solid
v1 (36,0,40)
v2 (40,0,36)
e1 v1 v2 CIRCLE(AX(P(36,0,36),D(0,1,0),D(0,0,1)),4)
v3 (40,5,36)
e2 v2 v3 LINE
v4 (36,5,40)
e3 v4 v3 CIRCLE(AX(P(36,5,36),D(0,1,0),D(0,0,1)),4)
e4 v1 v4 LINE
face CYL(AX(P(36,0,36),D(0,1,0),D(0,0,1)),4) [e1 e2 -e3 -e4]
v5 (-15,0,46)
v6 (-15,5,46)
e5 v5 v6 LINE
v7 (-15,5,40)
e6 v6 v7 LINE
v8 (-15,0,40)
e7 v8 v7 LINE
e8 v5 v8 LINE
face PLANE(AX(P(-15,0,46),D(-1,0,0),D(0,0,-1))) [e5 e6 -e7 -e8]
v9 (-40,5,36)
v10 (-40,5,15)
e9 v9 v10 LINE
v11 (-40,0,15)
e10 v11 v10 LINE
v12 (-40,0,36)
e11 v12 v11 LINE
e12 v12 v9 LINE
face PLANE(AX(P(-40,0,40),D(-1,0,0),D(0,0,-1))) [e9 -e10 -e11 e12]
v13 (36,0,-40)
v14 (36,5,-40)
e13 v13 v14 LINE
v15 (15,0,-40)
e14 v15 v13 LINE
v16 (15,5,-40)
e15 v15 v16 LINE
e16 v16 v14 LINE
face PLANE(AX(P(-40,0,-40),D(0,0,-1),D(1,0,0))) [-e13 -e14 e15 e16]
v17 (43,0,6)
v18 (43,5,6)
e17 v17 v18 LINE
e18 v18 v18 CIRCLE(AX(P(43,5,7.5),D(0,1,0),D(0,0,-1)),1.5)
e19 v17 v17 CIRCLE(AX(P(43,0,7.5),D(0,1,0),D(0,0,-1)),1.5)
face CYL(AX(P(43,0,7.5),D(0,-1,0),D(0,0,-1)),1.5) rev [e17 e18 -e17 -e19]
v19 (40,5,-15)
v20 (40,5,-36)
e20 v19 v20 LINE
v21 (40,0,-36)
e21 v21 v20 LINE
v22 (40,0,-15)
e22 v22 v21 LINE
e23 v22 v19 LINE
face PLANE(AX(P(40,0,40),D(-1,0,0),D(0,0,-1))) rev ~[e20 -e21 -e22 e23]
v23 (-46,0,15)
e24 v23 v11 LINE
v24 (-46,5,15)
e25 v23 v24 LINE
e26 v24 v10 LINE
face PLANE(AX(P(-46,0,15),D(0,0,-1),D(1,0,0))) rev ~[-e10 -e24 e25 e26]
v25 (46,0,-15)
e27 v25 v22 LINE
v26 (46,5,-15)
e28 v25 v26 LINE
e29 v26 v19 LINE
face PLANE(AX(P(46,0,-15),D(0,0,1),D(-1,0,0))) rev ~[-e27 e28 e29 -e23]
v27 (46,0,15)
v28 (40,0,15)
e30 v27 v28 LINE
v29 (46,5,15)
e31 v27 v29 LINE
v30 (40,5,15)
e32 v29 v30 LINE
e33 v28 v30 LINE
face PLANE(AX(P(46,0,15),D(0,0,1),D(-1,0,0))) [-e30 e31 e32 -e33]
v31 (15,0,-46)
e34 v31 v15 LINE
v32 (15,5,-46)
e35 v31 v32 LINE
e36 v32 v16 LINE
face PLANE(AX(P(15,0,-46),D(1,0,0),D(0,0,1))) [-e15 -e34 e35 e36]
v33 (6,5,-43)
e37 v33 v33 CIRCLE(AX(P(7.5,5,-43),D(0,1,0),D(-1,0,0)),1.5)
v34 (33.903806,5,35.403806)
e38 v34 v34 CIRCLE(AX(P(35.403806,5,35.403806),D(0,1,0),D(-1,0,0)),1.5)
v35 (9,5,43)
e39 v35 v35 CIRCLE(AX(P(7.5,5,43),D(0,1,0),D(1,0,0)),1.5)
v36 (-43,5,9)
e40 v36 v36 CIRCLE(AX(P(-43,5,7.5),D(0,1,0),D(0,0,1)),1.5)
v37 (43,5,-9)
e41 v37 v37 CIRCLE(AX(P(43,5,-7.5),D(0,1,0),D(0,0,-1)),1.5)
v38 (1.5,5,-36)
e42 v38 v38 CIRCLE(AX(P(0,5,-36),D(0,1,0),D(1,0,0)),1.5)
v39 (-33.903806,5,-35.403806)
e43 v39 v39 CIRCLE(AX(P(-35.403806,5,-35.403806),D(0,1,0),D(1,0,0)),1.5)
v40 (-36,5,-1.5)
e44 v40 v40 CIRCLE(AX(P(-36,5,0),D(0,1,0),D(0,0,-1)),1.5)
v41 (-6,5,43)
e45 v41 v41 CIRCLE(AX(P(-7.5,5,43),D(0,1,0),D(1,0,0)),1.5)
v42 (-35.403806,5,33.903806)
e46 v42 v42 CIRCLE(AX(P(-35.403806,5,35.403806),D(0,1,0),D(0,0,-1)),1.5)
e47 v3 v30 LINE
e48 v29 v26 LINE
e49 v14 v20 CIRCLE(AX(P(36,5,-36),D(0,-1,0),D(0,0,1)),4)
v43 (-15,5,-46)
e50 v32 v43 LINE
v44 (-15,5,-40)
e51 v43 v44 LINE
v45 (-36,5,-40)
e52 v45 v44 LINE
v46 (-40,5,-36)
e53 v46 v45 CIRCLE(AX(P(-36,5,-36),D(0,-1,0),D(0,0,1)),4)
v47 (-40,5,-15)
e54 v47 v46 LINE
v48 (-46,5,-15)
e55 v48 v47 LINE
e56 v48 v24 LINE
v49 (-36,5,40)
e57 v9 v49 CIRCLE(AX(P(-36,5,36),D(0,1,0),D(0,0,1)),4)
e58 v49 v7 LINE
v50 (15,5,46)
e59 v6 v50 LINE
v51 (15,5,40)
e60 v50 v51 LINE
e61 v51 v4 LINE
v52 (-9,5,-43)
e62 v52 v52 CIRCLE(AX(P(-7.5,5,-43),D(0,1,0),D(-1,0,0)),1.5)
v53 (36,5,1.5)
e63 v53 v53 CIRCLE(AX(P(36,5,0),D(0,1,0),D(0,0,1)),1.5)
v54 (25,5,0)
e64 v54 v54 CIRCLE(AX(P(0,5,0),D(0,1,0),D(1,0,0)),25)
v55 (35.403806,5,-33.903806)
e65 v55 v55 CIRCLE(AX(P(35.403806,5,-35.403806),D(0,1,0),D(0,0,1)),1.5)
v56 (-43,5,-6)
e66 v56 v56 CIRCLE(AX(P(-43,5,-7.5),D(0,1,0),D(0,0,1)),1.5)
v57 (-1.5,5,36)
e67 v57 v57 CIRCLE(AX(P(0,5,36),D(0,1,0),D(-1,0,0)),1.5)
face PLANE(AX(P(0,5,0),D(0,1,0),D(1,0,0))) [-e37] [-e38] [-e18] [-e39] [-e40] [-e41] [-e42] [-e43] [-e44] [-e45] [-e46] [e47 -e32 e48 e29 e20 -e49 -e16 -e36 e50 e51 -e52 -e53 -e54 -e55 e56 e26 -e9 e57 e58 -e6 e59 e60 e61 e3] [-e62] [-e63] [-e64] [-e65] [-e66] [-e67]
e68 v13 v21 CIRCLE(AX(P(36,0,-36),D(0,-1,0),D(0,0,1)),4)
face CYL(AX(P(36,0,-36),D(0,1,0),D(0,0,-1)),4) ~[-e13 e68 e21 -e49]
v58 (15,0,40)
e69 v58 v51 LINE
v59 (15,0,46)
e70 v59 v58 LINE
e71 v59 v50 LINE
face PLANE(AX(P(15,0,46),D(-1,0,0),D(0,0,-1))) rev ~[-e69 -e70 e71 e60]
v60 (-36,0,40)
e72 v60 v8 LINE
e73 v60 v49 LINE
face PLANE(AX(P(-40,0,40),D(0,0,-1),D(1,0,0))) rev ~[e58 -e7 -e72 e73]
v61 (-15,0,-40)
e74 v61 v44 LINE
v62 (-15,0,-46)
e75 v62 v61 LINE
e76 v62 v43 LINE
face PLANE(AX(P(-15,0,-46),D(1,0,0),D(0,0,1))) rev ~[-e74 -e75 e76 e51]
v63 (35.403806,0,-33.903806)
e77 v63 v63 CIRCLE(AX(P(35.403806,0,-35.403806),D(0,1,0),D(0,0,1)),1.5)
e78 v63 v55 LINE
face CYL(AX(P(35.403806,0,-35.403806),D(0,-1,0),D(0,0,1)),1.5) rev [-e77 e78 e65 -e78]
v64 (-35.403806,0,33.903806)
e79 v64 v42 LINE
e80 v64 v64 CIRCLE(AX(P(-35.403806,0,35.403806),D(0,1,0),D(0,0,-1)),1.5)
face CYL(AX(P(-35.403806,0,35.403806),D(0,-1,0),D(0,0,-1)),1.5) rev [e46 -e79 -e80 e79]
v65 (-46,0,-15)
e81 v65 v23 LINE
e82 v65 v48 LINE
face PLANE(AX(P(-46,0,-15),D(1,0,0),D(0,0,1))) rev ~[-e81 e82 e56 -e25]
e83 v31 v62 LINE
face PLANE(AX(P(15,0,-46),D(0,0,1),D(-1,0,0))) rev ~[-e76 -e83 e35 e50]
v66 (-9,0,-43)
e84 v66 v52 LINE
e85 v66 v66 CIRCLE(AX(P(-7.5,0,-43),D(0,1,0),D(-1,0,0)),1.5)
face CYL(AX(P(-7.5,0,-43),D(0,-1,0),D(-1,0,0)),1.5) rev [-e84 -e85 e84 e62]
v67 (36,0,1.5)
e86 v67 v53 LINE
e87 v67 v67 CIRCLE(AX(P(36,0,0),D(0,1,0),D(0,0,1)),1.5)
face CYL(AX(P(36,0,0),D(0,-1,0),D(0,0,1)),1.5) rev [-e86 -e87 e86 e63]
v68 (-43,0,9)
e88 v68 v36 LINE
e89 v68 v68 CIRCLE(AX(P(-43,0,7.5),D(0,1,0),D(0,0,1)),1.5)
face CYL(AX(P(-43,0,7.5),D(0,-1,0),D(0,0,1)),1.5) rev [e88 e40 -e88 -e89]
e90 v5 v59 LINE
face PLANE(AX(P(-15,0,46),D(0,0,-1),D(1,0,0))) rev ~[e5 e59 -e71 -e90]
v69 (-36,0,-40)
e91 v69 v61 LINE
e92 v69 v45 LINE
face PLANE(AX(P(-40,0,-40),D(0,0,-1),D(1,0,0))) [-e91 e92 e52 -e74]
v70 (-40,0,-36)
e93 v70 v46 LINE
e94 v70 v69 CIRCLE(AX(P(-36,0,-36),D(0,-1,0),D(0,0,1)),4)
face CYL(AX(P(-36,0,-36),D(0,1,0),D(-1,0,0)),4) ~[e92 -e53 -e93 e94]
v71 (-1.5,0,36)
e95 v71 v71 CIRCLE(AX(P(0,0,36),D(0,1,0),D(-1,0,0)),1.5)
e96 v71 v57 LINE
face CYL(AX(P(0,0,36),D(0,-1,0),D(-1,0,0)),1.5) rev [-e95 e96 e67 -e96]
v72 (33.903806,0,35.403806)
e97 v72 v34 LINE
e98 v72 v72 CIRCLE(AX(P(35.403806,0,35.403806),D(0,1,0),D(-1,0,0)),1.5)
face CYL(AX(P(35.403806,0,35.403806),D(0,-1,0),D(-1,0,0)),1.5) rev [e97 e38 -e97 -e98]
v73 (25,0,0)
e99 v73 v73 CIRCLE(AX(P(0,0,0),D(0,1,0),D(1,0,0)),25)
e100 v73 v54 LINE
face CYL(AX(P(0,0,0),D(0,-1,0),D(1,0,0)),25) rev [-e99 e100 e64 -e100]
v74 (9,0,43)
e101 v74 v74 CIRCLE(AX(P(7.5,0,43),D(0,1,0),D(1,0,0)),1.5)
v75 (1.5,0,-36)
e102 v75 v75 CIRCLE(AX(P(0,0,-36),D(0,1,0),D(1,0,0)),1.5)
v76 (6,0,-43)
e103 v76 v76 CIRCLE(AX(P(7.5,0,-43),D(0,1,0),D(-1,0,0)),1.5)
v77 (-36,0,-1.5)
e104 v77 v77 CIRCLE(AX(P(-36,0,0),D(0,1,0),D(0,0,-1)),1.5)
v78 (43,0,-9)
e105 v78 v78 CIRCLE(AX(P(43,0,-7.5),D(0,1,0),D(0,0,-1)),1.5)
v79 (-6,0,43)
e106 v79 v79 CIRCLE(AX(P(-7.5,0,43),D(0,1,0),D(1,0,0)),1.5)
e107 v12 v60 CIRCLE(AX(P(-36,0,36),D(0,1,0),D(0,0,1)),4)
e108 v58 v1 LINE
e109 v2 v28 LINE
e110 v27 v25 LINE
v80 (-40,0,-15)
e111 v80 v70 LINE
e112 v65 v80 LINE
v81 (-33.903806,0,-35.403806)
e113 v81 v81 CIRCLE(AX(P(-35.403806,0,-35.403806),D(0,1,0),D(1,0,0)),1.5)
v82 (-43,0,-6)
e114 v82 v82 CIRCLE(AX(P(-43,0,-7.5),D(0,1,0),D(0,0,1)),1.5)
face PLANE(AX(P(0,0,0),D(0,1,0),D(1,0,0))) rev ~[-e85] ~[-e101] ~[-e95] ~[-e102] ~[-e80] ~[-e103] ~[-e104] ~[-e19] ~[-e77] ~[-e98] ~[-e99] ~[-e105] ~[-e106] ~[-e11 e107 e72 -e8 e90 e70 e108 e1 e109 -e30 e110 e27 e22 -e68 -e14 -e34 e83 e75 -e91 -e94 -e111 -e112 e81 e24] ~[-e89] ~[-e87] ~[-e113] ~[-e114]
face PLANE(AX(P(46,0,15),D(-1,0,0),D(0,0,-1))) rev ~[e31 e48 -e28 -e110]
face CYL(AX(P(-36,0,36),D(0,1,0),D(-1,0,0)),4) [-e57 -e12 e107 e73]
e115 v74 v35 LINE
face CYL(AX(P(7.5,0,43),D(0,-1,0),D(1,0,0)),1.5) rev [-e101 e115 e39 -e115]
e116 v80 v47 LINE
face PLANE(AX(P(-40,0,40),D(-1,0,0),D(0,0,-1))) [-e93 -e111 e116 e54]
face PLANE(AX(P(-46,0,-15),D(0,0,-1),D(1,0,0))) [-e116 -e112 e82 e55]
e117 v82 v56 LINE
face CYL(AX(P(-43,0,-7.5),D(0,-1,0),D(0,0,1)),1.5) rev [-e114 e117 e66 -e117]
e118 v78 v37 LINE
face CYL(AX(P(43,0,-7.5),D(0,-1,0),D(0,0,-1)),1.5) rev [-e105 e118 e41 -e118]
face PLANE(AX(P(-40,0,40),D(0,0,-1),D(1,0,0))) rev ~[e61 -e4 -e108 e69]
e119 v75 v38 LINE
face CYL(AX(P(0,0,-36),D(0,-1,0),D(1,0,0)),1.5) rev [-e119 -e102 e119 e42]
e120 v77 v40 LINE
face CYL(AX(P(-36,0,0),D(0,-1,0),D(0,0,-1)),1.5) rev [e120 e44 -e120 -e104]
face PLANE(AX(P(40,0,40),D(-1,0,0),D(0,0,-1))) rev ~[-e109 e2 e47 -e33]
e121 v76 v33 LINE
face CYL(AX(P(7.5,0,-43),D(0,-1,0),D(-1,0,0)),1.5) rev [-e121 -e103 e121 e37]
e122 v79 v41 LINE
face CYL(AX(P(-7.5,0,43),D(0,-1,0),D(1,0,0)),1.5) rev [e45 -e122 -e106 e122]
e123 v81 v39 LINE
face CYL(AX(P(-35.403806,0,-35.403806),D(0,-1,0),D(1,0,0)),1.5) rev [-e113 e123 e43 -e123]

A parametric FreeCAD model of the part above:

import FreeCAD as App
import Part
import Sketcher
from FreeCAD import Vector


def edges_at(feature, points):
    """Names of the edges that pass closest to the given points."""
    edges = feature.Shape.Edges
    near = lambda p: min(range(len(edges)), key=lambda i: edges[i].distToShape(Part.Vertex(*p))[0])
    return sorted({f"Edge{near(p) + 1}" for p in points})

doc = App.newDocument("Part")
body = doc.addObject("PartDesign::Body", "Body")

sketch1 = body.newObject("Sketcher::SketchObject", "Sketch")
sketch1.AttachmentSupport = (doc.getObject("XZ_Plane"), [""])
sketch1.MapMode = "FlatFace"
sketch1.addGeometry([
    Part.LineSegment(Vector(-40, -40, 0), Vector(-40, 40, 0)),
    Part.LineSegment(Vector(-40, 40, 0), Vector(40, 40, 0)),
    Part.LineSegment(Vector(40, 40, 0), Vector(40, -40, 0)),
    Part.LineSegment(Vector(40, -40, 0), Vector(-40, -40, 0)),
    Part.Circle(Vector(0, 0, 0), Vector(0, 0, 1), 25),
], False)
sketch1.addConstraint([
    Sketcher.Constraint("Coincident", 0, 2, 1, 1),
    Sketcher.Constraint("Coincident", 1, 2, 2, 1),
    Sketcher.Constraint("Coincident", 2, 2, 3, 1),
    Sketcher.Constraint("Coincident", 3, 2, 0, 1),
    Sketcher.Constraint("Vertical", 0),
    Sketcher.Constraint("Horizontal", 1),
    Sketcher.Constraint("Vertical", 2),
    Sketcher.Constraint("Horizontal", 3),
    Sketcher.Constraint("Coincident", 4, 3, -1, 1),
    Sketcher.Constraint("Symmetric", 0, 2, 2, 2, -1, 1),
    Sketcher.Constraint("Equal", 3, 0),
    Sketcher.Constraint("Diameter", 4, 50.0),
    Sketcher.Constraint("DistanceX", 1, 1, 1, 2, 80.0),
])
pad1 = body.newObject("PartDesign::Pad", "Pad")
pad1.Profile = sketch1
pad1.Length = 5
pad1.Reversed = True

sketch2 = body.newObject("Sketcher::SketchObject", "Sketch001")
sketch2.AttachmentSupport = (doc.getObject("XZ_Plane"), [""])
sketch2.MapMode = "FlatFace"
sketch2.addGeometry([
    Part.Circle(Vector(0, -36, 0), Vector(0, 0, 1), 1.5),
    Part.Circle(Vector(-35.403806, -35.403806, 0), Vector(0, 0, 1), 1.5),
], False)
sketch2.addConstraint([
    Sketcher.Constraint("Equal", 0, 1),
    Sketcher.Constraint("PointOnObject", 0, 3, -2),
    Sketcher.Constraint("Diameter", 0, 3.0),
    Sketcher.Constraint("DistanceY", 0, 3, -1, 1, 36.0),
    Sketcher.Constraint("DistanceX", 1, 3, -1, 1, 35.403806),
    Sketcher.Constraint("DistanceY", 1, 3, -1, 1, 35.403806),
])
pocket1 = body.newObject("PartDesign::Pocket", "Pocket")
pocket1.Profile = sketch2
pocket1.Length = 5
doc.recompute()

polarpattern = body.newObject("PartDesign::PolarPattern", "PolarPattern")
polarpattern.Originals = [pocket1]
polarpattern.Axis = (doc.getObject("Y_Axis"), [""])
polarpattern.Angle = 360
polarpattern.Occurrences = 4
body.Tip = polarpattern
doc.recompute()

fillet = body.newObject("PartDesign::Fillet", "Fillet")
fillet.Base = (polarpattern, edges_at(polarpattern, [
    (40, 2.5, 40),
    (-40, 2.5, 40),
    (-40, 2.5, -40),
    (40, 2.5, -40),
]))
fillet.Radius = 4

sketch3 = body.newObject("Sketcher::SketchObject", "Sketch002")
sketch3.AttachmentSupport = (doc.getObject("XZ_Plane"), [""])
sketch3.MapMode = "FlatFace"
sketch3.addGeometry([
    Part.LineSegment(Vector(-15, 40, 0), Vector(-15, 46, 0)),
    Part.LineSegment(Vector(-15, 46, 0), Vector(15, 46, 0)),
    Part.LineSegment(Vector(15, 46, 0), Vector(15, 40, 0)),
    Part.LineSegment(Vector(15, 40, 0), Vector(-15, 40, 0)),
    Part.Circle(Vector(-7.5, 43, 0), Vector(0, 0, 1), 1.5),
    Part.Circle(Vector(7.5, 43, 0), Vector(0, 0, 1), 1.5),
], False)
sketch3.addConstraint([
    Sketcher.Constraint("Coincident", 0, 2, 1, 1),
    Sketcher.Constraint("Coincident", 1, 2, 2, 1),
    Sketcher.Constraint("Coincident", 2, 2, 3, 1),
    Sketcher.Constraint("Coincident", 3, 2, 0, 1),
    Sketcher.Constraint("Vertical", 0),
    Sketcher.Constraint("Horizontal", 1),
    Sketcher.Constraint("Vertical", 2),
    Sketcher.Constraint("Horizontal", 3),
    Sketcher.Constraint("Equal", 4, 5),
    Sketcher.Constraint("Symmetric", 4, 3, 5, 3, -2),
    Sketcher.Constraint("Diameter", 4, 3.0),
    Sketcher.Constraint("DistanceX", 1, 1, 1, 2, 30.0),
    Sketcher.Constraint("DistanceY", 0, 1, 0, 2, 6.0),
    Sketcher.Constraint("DistanceY", -1, 1, 4, 3, 43.0),
    Sketcher.Constraint("DistanceX", 0, 2, -1, 1, 15.0),
    Sketcher.Constraint("DistanceY", -1, 1, 0, 2, 46.0),
    Sketcher.Constraint("DistanceX", 4, 3, 5, 3, 15.0),
])
pad2 = body.newObject("PartDesign::Pad", "Pad001")
pad2.Profile = sketch3
pad2.Length = 5
pad2.Reversed = True
doc.recompute()

polarpattern2 = body.newObject("PartDesign::PolarPattern", "PolarPattern001")
polarpattern2.Originals = [pad2]
polarpattern2.Axis = (doc.getObject("Y_Axis"), [""])
polarpattern2.Angle = 360
polarpattern2.Occurrences = 4
body.Tip = polarpattern2

doc.recompute()
